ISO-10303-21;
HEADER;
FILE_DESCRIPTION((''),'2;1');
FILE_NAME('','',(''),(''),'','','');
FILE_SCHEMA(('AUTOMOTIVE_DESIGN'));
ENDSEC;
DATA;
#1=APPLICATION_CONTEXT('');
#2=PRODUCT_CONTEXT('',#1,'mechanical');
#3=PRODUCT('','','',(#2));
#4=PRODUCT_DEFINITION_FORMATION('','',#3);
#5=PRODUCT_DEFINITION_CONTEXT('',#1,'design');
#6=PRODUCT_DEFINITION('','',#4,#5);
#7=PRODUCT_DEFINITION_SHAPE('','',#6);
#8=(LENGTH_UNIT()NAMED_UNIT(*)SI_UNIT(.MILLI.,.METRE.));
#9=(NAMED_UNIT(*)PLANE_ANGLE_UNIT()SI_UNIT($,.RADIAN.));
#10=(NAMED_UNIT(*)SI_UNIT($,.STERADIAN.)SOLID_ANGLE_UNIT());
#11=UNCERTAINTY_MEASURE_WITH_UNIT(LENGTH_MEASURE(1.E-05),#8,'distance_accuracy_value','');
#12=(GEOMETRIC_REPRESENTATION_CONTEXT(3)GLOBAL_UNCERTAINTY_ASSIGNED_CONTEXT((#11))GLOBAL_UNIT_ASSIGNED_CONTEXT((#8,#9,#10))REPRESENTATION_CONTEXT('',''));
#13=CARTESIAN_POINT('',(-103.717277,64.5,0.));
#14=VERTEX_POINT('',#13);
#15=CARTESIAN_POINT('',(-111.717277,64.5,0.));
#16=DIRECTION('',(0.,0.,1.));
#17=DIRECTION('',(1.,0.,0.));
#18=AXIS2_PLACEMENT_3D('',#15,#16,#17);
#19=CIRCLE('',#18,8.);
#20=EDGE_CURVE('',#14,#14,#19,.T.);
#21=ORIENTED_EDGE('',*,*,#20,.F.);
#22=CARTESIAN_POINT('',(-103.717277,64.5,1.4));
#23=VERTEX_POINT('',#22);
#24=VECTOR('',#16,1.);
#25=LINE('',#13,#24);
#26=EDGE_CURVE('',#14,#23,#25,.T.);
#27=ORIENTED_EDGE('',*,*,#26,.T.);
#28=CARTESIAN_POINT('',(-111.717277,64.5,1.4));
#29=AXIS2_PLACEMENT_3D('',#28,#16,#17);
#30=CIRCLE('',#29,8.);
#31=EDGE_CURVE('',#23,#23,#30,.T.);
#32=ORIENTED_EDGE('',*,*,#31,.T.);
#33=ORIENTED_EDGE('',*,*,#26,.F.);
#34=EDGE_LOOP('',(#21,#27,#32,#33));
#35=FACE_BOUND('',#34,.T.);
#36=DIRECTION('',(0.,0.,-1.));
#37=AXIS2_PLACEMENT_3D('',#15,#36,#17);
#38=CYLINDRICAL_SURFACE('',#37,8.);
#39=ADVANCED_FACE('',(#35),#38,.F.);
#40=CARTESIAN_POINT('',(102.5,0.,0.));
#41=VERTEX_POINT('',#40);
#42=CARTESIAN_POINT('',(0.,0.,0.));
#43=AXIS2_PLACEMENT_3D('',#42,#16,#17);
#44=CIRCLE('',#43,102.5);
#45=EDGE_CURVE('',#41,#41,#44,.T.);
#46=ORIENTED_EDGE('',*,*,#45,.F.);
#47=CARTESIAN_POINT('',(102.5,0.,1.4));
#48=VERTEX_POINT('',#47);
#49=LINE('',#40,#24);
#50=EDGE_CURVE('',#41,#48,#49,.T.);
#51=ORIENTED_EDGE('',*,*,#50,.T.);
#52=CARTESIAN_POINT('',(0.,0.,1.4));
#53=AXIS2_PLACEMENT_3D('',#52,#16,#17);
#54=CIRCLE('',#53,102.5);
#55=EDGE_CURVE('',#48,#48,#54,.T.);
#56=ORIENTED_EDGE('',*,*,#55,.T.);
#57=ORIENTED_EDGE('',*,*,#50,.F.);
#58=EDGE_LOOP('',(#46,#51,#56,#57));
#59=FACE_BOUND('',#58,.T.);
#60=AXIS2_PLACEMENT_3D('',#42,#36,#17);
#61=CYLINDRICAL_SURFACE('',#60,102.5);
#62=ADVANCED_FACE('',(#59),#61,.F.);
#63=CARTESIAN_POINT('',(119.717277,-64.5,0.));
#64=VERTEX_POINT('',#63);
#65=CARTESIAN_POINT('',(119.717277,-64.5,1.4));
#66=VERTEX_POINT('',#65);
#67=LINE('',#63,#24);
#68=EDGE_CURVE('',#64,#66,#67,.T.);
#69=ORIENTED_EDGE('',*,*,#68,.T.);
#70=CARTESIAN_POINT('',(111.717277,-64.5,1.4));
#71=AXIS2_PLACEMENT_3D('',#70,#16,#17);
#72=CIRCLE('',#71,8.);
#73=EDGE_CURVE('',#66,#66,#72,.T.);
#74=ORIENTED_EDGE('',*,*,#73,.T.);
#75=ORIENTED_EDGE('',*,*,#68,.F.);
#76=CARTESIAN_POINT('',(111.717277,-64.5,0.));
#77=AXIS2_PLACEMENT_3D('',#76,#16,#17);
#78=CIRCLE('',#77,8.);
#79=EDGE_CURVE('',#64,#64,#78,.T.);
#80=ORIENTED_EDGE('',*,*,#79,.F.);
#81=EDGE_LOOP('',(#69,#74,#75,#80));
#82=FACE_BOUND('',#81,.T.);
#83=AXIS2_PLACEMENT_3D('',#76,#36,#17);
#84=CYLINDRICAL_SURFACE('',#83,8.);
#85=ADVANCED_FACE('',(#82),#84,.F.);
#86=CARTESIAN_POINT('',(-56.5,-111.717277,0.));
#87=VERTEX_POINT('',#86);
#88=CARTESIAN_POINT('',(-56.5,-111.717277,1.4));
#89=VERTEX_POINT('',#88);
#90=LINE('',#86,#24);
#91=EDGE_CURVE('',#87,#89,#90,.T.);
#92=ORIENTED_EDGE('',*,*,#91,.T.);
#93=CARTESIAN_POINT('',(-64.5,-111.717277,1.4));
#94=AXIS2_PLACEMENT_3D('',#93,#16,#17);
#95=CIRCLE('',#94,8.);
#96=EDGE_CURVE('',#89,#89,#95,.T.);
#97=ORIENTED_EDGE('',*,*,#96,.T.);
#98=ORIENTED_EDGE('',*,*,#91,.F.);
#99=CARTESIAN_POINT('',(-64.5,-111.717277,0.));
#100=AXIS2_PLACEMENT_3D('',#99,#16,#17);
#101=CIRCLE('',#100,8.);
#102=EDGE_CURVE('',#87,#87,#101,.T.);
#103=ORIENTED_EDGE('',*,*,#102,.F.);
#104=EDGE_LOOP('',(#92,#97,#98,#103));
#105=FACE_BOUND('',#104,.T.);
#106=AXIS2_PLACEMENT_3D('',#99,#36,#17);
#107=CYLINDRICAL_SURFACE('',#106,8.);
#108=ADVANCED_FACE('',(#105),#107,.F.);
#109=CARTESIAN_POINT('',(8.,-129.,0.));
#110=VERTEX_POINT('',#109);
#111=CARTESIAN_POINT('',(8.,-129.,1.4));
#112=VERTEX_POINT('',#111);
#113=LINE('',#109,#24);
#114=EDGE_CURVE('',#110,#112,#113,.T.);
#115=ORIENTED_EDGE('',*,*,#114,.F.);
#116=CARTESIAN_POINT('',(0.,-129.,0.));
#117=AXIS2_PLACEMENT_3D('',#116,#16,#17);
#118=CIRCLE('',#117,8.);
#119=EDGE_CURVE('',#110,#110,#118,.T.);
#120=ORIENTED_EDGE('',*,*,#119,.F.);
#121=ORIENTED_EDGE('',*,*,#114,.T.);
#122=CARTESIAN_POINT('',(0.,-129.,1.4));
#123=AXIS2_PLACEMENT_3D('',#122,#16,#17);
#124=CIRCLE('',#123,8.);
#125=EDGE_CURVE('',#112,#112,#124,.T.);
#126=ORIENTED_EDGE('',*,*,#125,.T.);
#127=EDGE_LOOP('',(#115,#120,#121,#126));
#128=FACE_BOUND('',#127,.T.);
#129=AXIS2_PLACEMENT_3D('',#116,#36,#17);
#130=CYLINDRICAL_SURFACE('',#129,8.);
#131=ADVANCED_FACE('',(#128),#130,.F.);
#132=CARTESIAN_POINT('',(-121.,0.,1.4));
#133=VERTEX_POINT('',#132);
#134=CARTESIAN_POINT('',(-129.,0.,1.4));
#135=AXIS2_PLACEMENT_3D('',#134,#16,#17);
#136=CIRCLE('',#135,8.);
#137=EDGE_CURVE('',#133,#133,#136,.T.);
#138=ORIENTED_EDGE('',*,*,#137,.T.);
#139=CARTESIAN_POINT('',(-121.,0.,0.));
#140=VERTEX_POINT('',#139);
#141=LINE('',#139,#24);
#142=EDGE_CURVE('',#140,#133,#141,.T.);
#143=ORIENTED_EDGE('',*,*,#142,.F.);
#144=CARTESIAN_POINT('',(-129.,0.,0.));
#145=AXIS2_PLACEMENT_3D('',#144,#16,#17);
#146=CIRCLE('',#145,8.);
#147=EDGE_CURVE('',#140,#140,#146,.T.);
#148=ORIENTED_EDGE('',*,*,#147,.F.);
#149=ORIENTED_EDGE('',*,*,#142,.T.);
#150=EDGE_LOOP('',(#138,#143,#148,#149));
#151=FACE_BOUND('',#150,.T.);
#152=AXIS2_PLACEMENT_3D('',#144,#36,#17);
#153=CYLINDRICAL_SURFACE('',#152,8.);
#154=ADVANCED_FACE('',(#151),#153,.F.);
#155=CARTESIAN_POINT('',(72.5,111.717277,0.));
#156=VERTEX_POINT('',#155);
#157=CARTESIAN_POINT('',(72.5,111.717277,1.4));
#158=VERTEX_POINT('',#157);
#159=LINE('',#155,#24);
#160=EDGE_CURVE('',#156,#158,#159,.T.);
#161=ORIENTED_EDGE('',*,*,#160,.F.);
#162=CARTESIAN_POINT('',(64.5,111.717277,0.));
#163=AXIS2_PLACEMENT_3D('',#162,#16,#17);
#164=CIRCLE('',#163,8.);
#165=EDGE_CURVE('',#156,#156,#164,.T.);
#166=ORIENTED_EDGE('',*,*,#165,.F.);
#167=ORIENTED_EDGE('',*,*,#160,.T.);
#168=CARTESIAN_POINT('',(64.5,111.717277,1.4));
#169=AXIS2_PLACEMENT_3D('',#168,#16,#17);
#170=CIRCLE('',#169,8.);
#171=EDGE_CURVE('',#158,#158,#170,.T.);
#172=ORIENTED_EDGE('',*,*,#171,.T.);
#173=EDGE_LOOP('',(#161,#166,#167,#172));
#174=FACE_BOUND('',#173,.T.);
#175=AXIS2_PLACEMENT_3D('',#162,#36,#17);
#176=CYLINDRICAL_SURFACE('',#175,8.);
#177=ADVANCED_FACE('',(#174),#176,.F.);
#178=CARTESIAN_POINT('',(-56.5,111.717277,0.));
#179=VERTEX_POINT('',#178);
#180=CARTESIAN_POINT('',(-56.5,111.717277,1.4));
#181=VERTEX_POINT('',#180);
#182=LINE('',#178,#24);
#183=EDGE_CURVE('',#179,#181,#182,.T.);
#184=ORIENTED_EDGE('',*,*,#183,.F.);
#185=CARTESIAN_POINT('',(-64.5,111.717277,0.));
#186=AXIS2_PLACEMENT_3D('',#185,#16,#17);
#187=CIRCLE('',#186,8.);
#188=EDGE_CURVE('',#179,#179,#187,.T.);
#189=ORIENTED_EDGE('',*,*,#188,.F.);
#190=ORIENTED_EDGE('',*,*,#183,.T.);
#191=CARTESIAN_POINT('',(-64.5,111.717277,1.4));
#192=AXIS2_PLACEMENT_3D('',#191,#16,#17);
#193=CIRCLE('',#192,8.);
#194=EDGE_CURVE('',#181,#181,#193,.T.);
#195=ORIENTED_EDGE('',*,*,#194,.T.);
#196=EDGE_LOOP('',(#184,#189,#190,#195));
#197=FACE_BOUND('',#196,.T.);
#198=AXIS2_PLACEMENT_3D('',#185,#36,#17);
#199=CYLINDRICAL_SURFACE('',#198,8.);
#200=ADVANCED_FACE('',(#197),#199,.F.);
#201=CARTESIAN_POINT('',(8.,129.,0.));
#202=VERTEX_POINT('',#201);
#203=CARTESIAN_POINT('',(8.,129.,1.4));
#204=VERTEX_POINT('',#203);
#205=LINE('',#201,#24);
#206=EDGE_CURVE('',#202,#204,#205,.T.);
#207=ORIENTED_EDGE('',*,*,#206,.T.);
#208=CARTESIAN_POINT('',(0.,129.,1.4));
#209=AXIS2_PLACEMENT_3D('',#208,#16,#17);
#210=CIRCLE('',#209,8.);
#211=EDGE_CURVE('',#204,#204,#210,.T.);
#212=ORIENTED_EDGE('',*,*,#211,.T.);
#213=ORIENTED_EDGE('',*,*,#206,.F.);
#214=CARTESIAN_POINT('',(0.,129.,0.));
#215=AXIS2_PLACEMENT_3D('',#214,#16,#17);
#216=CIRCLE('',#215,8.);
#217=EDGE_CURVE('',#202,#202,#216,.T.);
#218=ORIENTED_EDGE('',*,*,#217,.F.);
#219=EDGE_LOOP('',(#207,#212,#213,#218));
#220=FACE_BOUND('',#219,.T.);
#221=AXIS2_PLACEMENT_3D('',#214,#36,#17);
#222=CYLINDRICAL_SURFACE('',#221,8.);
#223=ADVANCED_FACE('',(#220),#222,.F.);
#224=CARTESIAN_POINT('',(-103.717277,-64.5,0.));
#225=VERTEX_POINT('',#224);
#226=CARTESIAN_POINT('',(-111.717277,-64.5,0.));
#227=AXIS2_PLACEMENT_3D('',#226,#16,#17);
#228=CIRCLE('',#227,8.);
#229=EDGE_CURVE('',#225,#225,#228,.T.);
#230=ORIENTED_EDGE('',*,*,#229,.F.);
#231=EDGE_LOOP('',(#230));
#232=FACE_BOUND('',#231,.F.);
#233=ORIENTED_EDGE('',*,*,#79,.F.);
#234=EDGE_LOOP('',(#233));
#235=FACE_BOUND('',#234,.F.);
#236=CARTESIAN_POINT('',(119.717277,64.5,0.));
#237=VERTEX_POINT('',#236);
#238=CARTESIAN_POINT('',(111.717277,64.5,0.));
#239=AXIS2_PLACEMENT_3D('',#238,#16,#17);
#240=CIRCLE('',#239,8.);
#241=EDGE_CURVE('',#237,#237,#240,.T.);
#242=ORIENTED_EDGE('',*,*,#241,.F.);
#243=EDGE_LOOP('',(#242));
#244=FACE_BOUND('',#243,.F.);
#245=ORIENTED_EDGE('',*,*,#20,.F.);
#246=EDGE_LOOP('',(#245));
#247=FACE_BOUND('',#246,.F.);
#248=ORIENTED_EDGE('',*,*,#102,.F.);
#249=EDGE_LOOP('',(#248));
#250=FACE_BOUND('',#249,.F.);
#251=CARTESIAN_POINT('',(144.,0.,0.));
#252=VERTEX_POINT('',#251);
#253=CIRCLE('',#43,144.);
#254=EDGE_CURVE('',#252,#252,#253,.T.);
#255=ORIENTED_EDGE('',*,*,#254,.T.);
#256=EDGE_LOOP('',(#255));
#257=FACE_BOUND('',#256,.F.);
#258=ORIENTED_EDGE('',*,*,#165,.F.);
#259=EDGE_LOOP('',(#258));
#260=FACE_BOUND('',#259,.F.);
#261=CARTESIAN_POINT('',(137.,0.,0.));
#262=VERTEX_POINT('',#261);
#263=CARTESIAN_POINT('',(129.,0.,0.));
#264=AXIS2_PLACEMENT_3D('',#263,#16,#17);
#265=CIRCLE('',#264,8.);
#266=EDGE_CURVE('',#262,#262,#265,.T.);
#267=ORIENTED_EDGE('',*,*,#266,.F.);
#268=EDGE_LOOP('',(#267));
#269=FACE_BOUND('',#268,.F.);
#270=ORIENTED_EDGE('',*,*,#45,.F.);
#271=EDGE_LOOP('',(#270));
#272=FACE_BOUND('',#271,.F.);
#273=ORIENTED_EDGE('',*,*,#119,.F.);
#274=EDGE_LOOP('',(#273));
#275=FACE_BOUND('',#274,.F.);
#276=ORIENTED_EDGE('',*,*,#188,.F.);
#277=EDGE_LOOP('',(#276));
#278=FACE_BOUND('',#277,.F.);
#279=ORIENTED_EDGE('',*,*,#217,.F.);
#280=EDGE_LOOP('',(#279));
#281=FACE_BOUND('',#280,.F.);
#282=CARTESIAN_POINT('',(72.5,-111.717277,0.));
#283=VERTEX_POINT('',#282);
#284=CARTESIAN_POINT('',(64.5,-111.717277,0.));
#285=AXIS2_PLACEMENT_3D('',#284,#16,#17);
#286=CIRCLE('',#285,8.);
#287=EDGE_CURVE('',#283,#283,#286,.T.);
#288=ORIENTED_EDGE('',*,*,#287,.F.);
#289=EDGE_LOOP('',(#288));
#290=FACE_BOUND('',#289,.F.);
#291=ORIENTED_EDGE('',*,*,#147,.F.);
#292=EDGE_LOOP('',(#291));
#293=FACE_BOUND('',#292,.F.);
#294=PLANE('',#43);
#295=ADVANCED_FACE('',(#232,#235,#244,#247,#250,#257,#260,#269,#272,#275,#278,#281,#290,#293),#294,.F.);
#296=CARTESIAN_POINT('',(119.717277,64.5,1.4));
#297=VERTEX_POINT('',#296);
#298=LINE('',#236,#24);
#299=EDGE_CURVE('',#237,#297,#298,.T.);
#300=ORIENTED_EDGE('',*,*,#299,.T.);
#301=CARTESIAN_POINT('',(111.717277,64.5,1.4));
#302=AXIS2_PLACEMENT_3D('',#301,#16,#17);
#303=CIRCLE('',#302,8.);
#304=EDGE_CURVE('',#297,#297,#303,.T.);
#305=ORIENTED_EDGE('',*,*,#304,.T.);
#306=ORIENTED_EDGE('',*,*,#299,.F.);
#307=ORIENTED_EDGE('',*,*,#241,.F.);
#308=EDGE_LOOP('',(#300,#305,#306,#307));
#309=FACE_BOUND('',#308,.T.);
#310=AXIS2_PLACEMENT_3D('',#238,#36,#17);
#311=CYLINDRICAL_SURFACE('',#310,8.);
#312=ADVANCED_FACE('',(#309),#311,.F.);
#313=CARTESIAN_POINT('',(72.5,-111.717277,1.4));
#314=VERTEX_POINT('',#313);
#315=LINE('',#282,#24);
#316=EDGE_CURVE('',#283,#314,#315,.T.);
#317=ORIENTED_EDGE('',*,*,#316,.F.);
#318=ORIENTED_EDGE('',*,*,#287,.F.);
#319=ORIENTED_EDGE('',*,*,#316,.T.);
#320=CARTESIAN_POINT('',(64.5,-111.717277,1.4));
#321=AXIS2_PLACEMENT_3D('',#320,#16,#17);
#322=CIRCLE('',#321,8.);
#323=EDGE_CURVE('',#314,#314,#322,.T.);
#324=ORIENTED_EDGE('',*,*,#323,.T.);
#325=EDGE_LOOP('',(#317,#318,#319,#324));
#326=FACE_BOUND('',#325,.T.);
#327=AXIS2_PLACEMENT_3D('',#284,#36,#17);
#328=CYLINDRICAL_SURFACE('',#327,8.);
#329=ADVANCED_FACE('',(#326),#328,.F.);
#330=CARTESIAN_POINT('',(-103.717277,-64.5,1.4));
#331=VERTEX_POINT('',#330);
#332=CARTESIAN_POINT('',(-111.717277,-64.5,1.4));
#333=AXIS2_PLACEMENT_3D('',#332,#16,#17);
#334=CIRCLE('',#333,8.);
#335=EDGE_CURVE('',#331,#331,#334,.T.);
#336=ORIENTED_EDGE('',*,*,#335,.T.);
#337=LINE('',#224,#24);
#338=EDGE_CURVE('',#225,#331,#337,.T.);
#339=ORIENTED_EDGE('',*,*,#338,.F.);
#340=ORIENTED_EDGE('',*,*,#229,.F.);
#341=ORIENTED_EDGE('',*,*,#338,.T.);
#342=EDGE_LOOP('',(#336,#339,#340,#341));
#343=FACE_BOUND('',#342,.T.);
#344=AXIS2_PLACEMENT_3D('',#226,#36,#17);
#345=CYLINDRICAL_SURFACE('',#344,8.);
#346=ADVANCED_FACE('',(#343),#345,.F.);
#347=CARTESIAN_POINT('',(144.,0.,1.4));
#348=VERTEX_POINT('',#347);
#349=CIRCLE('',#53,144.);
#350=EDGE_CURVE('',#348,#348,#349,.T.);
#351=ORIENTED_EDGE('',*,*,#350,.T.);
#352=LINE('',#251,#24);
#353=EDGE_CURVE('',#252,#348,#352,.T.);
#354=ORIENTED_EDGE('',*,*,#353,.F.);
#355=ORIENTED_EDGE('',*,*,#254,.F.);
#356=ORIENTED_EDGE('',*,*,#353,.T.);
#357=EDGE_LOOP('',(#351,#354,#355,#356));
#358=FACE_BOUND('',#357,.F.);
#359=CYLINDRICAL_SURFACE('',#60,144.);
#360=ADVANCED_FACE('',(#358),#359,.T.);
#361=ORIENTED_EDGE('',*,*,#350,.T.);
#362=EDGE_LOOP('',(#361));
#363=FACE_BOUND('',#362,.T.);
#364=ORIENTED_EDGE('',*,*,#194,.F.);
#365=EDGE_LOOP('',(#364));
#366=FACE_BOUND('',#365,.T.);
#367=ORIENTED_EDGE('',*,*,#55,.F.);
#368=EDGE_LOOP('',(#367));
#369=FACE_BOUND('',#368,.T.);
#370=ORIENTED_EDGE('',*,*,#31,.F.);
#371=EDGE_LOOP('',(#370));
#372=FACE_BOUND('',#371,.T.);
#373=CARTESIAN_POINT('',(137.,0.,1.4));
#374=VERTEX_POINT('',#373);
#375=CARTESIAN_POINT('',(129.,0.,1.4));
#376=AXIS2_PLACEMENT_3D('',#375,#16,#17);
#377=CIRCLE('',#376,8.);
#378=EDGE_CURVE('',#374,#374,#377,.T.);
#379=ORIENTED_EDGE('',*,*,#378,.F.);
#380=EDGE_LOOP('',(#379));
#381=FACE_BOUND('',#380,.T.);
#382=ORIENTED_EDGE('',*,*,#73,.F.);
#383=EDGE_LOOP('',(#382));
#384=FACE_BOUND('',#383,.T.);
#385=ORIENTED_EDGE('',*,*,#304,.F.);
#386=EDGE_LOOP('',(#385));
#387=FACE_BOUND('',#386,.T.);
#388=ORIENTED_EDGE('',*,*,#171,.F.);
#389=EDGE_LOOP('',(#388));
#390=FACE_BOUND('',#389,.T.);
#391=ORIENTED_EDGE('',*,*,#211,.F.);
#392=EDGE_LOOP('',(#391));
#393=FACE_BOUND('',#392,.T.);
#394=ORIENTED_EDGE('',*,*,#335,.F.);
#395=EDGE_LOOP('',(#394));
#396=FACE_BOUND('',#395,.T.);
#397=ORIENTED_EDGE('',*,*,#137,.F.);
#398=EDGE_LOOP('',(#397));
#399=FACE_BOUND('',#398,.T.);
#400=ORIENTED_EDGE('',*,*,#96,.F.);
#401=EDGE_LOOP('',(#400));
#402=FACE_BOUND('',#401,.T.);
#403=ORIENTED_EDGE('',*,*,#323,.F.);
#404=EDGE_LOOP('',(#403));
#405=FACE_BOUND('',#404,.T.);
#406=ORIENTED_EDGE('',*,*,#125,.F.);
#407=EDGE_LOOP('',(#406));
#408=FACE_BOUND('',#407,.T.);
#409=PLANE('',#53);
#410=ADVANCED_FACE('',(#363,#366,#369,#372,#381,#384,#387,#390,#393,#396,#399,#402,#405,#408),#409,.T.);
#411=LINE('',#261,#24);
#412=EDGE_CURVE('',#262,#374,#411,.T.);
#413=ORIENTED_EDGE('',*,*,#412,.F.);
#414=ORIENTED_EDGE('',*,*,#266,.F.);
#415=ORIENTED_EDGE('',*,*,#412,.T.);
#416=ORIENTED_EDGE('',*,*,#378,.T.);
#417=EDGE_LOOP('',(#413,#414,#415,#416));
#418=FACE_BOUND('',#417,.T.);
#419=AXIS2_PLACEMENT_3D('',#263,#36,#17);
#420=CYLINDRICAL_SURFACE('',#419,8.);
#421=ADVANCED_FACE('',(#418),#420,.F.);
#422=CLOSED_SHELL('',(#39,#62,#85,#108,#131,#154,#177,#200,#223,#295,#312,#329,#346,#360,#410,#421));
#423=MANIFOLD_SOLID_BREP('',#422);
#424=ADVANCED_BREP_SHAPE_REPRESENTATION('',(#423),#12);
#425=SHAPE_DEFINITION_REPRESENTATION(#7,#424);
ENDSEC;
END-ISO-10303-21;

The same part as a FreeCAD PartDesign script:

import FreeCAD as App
import Part
import Sketcher

doc = App.newDocument("Part")
body = doc.addObject("PartDesign::Body", "Body")

# Sketch on XY plane
sketch1 = body.newObject("Sketcher::SketchObject", "Sketch")
sketch1.AttachmentSupport = (doc.getObject("XY_Plane"), [""])
sketch1.MapMode = "FlatFace"
sketch1.addGeometry(Part.Circle(App.Vector(0, 0, 0), App.Vector(0, 0, 1), 144), False)
sketch1.addGeometry(Part.Circle(App.Vector(-64, -112, 0), App.Vector(0, 0, 1), 8), False)
sketch1.addGeometry(Part.Circle(App.Vector(-112, -64, 0), App.Vector(0, 0, 1), 8), False)
sketch1.addGeometry(Part.Circle(App.Vector(0, -129, 0), App.Vector(0, 0, 1), 8), False)
sketch1.addGeometry(Part.Circle(App.Vector(64, -112, 0), App.Vector(0, 0, 1), 8), False)
sketch1.addGeometry(Part.Circle(App.Vector(112, -64, 0), App.Vector(0, 0, 1), 8), False)
sketch1.addGeometry(Part.Circle(App.Vector(-129, 0, 0), App.Vector(0, 0, 1), 8), False)
sketch1.addGeometry(Part.Circle(App.Vector(-112, 64, 0), App.Vector(0, 0, 1), 8), False)
sketch1.addGeometry(Part.Circle(App.Vector(-64, 112, 0), App.Vector(0, 0, 1), 8), False)
sketch1.addGeometry(Part.Circle(App.Vector(0, 0, 0), App.Vector(0, 0, 1), 102), False)
sketch1.addGeometry(Part.Circle(App.Vector(129, 0, 0), App.Vector(0, 0, 1), 8), False)
sketch1.addGeometry(Part.Circle(App.Vector(112, 64, 0), App.Vector(0, 0, 1), 8), False)
sketch1.addGeometry(Part.Circle(App.Vector(0, 129, 0), App.Vector(0, 0, 1), 8), False)
sketch1.addGeometry(Part.Circle(App.Vector(64, 112, 0), App.Vector(0, 0, 1), 8), False)
sketch1.addConstraint(Sketcher.Constraint("Coincident", 0, 3, -1, 1))
sketch1.addConstraint(Sketcher.Constraint("Coincident", 9, 3, -1, 1))
sketch1.addConstraint(Sketcher.Constraint("Equal", 1, 2))
sketch1.addConstraint(Sketcher.Constraint("Equal", 2, 3))
sketch1.addConstraint(Sketcher.Constraint("Equal", 3, 4))
sketch1.addConstraint(Sketcher.Constraint("Equal", 4, 5))
sketch1.addConstraint(Sketcher.Constraint("Equal", 5, 6))
sketch1.addConstraint(Sketcher.Constraint("Equal", 6, 7))
sketch1.addConstraint(Sketcher.Constraint("Equal", 7, 8))
sketch1.addConstraint(Sketcher.Constraint("Equal", 8, 10))
sketch1.addConstraint(Sketcher.Constraint("Equal", 10, 11))
sketch1.addConstraint(Sketcher.Constraint("Equal", 11, 12))
sketch1.addConstraint(Sketcher.Constraint("Equal", 12, 13))
sketch1.addConstraint(Sketcher.Constraint("Symmetric", 5, 3, 7, 3, -1, 1))
sketch1.addConstraint(Sketcher.Constraint("Symmetric", 4, 3, 8, 3, -1, 1))
sketch1.addConstraint(Sketcher.Constraint("Symmetric", 6, 3, 10, 3, -1, 1))
sketch1.addConstraint(Sketcher.Constraint("Symmetric", 2, 3, 11, 3, -1, 1))
sketch1.addConstraint(Sketcher.Constraint("Symmetric", 3, 3, 12, 3, -1, 1))
sketch1.addConstraint(Sketcher.Constraint("Symmetric", 1, 3, 13, 3, -1, 1))
sketch1.addConstraint(Sketcher.Constraint("Symmetric", 1, 3, 4, 3, -2))
sketch1.addConstraint(Sketcher.Constraint("Symmetric", 2, 3, 5, 3, -2))
sketch1.addConstraint(Sketcher.Constraint("PointOnObject", 3, 3, -2))
sketch1.addConstraint(Sketcher.Constraint("PointOnObject", 6, 3, -1))
sketch1.addConstraint(Sketcher.Constraint("Diameter", 0, 288.0))
sketch1.addConstraint(Sketcher.Constraint("Diameter", 1, 16.0))
sketch1.addConstraint(Sketcher.Constraint("Diameter", 9, 205.0))
sketch1.addConstraint(Sketcher.Constraint("DistanceY", 3, 3, -1, 1, 129.0))
sketch1.addConstraint(Sketcher.Constraint("DistanceX", 6, 3, -1, 1, 129.0))
sketch1.addConstraint(Sketcher.Constraint("DistanceX", 1, 3, 4, 3, 129.0))
sketch1.addConstraint(Sketcher.Constraint("DistanceY", 2, 3, 7, 3, 129.0))
sketch1.addConstraint(Sketcher.Constraint("DistanceY", 1, 3, -1, 1, 111.717277))
sketch1.addConstraint(Sketcher.Constraint("DistanceX", 2, 3, -1, 1, 111.717277))
pad1 = body.newObject("PartDesign::Pad", "Pad")
pad1.Profile = sketch1
pad1.Length = 1.4

doc.recompute()
